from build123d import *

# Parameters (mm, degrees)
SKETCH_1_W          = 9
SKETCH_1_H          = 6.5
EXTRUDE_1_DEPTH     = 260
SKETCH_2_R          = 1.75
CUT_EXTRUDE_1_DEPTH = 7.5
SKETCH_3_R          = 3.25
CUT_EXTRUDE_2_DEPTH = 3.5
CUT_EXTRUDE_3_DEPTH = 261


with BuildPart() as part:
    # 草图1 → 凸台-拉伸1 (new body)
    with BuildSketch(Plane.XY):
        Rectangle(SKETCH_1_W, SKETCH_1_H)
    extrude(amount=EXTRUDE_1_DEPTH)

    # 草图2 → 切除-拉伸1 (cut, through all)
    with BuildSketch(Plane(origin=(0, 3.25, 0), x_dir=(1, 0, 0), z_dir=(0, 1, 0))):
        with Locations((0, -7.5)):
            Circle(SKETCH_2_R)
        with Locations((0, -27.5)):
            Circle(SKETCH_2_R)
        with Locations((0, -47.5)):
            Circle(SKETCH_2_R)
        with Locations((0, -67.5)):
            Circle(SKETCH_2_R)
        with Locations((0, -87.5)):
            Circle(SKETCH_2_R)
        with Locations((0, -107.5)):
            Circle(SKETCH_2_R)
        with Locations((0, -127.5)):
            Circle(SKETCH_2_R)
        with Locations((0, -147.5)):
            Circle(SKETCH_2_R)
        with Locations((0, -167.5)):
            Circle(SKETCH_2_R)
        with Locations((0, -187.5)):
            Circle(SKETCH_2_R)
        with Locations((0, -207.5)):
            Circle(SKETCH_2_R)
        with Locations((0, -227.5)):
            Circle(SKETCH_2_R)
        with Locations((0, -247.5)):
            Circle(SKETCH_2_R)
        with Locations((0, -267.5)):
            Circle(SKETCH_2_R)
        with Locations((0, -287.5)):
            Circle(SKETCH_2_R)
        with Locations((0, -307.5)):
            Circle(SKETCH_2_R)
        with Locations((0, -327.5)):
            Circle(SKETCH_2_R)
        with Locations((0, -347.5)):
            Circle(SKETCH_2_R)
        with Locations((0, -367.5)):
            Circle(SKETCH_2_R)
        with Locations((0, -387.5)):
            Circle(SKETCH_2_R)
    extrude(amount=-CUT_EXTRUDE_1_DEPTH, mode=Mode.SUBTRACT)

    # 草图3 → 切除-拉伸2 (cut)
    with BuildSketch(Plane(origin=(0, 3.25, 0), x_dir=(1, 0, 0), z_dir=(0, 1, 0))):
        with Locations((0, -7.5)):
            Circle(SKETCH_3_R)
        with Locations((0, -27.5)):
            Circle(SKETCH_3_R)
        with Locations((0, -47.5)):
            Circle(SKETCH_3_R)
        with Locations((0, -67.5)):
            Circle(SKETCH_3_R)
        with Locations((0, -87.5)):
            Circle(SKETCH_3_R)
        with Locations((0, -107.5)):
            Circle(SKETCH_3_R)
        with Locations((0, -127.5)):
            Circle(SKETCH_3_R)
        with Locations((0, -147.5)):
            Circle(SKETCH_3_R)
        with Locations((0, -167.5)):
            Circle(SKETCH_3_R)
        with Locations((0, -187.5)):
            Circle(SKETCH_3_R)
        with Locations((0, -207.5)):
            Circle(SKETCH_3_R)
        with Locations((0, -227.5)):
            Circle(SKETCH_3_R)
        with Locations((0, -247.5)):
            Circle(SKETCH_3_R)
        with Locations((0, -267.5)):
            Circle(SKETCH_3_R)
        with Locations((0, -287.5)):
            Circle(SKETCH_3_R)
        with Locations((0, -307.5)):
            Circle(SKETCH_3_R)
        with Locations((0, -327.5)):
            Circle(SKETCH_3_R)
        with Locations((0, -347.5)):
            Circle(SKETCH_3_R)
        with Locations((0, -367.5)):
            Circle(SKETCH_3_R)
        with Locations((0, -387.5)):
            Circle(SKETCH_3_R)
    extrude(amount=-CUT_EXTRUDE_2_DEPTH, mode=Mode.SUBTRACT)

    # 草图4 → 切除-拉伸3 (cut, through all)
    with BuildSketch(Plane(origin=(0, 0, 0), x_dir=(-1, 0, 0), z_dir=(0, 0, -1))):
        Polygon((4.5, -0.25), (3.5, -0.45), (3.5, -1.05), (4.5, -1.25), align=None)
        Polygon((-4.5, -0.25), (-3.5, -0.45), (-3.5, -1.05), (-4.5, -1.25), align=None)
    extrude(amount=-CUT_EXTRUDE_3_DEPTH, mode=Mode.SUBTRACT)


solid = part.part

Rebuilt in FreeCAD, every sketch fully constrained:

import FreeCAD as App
import Part
import Sketcher
from FreeCAD import Vector

doc = App.newDocument("Part")
body = doc.addObject("PartDesign::Body", "Body")

# Sketch on XY plane
sketch1 = body.newObject("Sketcher::SketchObject", "Sketch")
sketch1.AttachmentSupport = (doc.getObject("XY_Plane"), [""])
sketch1.MapMode = "FlatFace"
sketch1.addGeometry(Part.LineSegment(Vector(-4, 3, 0), Vector(-4, -3, 0)), False)
sketch1.addGeometry(Part.LineSegment(Vector(-4, -3, 0), Vector(4, -3, 0)), False)
sketch1.addGeometry(Part.LineSegment(Vector(4, -3, 0), Vector(4, 3, 0)), False)
sketch1.addGeometry(Part.LineSegment(Vector(4, 3, 0), Vector(-4, 3, 0)), False)
sketch1.addConstraint(Sketcher.Constraint("Coincident", 0, 2, 1, 1))
sketch1.addConstraint(Sketcher.Constraint("Coincident", 1, 2, 2, 1))
sketch1.addConstraint(Sketcher.Constraint("Coincident", 2, 2, 3, 1))
sketch1.addConstraint(Sketcher.Constraint("Coincident", 3, 2, 0, 1))
sketch1.addConstraint(Sketcher.Constraint("Vertical", 0))
sketch1.addConstraint(Sketcher.Constraint("Horizontal", 1))
sketch1.addConstraint(Sketcher.Constraint("Vertical", 2))
sketch1.addConstraint(Sketcher.Constraint("Horizontal", 3))
sketch1.addConstraint(Sketcher.Constraint("Symmetric", 0, 2, 2, 2, -1, 1))
sketch1.addConstraint(Sketcher.Constraint("DistanceX", 1, 1, 1, 2, 9.0))
sketch1.addConstraint(Sketcher.Constraint("DistanceY", 0, 2, 0, 1, 6.5))
pad1 = body.newObject("PartDesign::Pad", "Pad")
pad1.Profile = sketch1
pad1.Length = 260

# Sketch on XZ plane
sketch2 = body.newObject("Sketcher::SketchObject", "Sketch001")
sketch2.AttachmentSupport = (doc.getObject("XZ_Plane"), [""])
sketch2.MapMode = "FlatFace"
sketch2.AttachmentOffset = App.Placement(Vector(0, 0, -3.25), App.Rotation())
sketch2.addGeometry(Part.Circle(Vector(0, 7.5, 0), Vector(0, 0, 1), 1.8), False)
sketch2.addGeometry(Part.Circle(Vector(0, 27.5, 0), Vector(0, 0, 1), 1.8), False)
sketch2.addGeometry(Part.Circle(Vector(0, 47.5, 0), Vector(0, 0, 1), 1.8), False)
sketch2.addGeometry(Part.Circle(Vector(0, 67.5, 0), Vector(0, 0, 1), 1.8), False)
sketch2.addGeometry(Part.Circle(Vector(0, 87.5, 0), Vector(0, 0, 1), 1.8), False)
sketch2.addGeometry(Part.Circle(Vector(0, 107.5, 0), Vector(0, 0, 1), 1.8), False)
sketch2.addGeometry(Part.Circle(Vector(0, 127.5, 0), Vector(0, 0, 1), 1.8), False)
sketch2.addGeometry(Part.Circle(Vector(0, 147.5, 0), Vector(0, 0, 1), 1.8), False)
sketch2.addGeometry(Part.Circle(Vector(0, 167.5, 0), Vector(0, 0, 1), 1.8), False)
sketch2.addGeometry(Part.Circle(Vector(0, 187.5, 0), Vector(0, 0, 1), 1.8), False)
sketch2.addGeometry(Part.Circle(Vector(0, 207.5, 0), Vector(0, 0, 1), 1.8), False)
sketch2.addGeometry(Part.Circle(Vector(0, 227.5, 0), Vector(0, 0, 1), 1.8), False)
sketch2.addGeometry(Part.Circle(Vector(0, 247.5, 0), Vector(0, 0, 1), 1.8), False)
sketch2.addGeometry(Part.Circle(Vector(0, 267.5, 0), Vector(0, 0, 1), 1.8), False)
sketch2.addGeometry(Part.Circle(Vector(0, 287.5, 0), Vector(0, 0, 1), 1.8), False)
sketch2.addGeometry(Part.Circle(Vector(0, 307.5, 0), Vector(0, 0, 1), 1.8), False)
sketch2.addGeometry(Part.Circle(Vector(0, 327.5, 0), Vector(0, 0, 1), 1.8), False)
sketch2.addGeometry(Part.Circle(Vector(0, 347.5, 0), Vector(0, 0, 1), 1.8), False)
sketch2.addGeometry(Part.Circle(Vector(0, 367.5, 0), Vector(0, 0, 1), 1.8), False)
sketch2.addGeometry(Part.Circle(Vector(0, 387.5, 0), Vector(0, 0, 1), 1.8), False)
sketch2.addConstraint(Sketcher.Constraint("Equal", 0, 1))
sketch2.addConstraint(Sketcher.Constraint("Equal", 1, 2))
sketch2.addConstraint(Sketcher.Constraint("Equal", 2, 3))
sketch2.addConstraint(Sketcher.Constraint("Equal", 3, 4))
sketch2.addConstraint(Sketcher.Constraint("Equal", 4, 5))
sketch2.addConstraint(Sketcher.Constraint("Equal", 5, 6))
sketch2.addConstraint(Sketcher.Constraint("Equal", 6, 7))
sketch2.addConstraint(Sketcher.Constraint("Equal", 7, 8))
sketch2.addConstraint(Sketcher.Constraint("Equal", 8, 9))
sketch2.addConstraint(Sketcher.Constraint("Equal", 9, 10))
sketch2.addConstraint(Sketcher.Constraint("Equal", 10, 11))
sketch2.addConstraint(Sketcher.Constraint("Equal", 11, 12))
sketch2.addConstraint(Sketcher.Constraint("Equal", 12, 13))
sketch2.addConstraint(Sketcher.Constraint("Equal", 13, 14))
sketch2.addConstraint(Sketcher.Constraint("Equal", 14, 15))
sketch2.addConstraint(Sketcher.Constraint("Equal", 15, 16))
sketch2.addConstraint(Sketcher.Constraint("Equal", 16, 17))
sketch2.addConstraint(Sketcher.Constraint("Equal", 17, 18))
sketch2.addConstraint(Sketcher.Constraint("Equal", 18, 19))
sketch2.addConstraint(Sketcher.Constraint("PointOnObject", 0, 3, -2))
sketch2.addConstraint(Sketcher.Constraint("PointOnObject", 1, 3, -2))
sketch2.addConstraint(Sketcher.Constraint("PointOnObject", 2, 3, -2))
sketch2.addConstraint(Sketcher.Constraint("PointOnObject", 3, 3, -2))
sketch2.addConstraint(Sketcher.Constraint("PointOnObject", 4, 3, -2))
sketch2.addConstraint(Sketcher.Constraint("PointOnObject", 5, 3, -2))
sketch2.addConstraint(Sketcher.Constraint("PointOnObject", 6, 3, -2))
sketch2.addConstraint(Sketcher.Constraint("PointOnObject", 7, 3, -2))
sketch2.addConstraint(Sketcher.Constraint("PointOnObject", 8, 3, -2))
sketch2.addConstraint(Sketcher.Constraint("PointOnObject", 9, 3, -2))
sketch2.addConstraint(Sketcher.Constraint("PointOnObject", 10, 3, -2))
sketch2.addConstraint(Sketcher.Constraint("PointOnObject", 11, 3, -2))
sketch2.addConstraint(Sketcher.Constraint("PointOnObject", 12, 3, -2))
sketch2.addConstraint(Sketcher.Constraint("PointOnObject", 13, 3, -2))
sketch2.addConstraint(Sketcher.Constraint("PointOnObject", 14, 3, -2))
sketch2.addConstraint(Sketcher.Constraint("PointOnObject", 15, 3, -2))
sketch2.addConstraint(Sketcher.Constraint("PointOnObject", 16, 3, -2))
sketch2.addConstraint(Sketcher.Constraint("PointOnObject", 17, 3, -2))
sketch2.addConstraint(Sketcher.Constraint("PointOnObject", 18, 3, -2))
sketch2.addConstraint(Sketcher.Constraint("PointOnObject", 19, 3, -2))
sketch2.addConstraint(Sketcher.Constraint("Diameter", 0, 3.5))
sketch2.addConstraint(Sketcher.Constraint("DistanceY", 0, 3, 1, 3, 20.0))
sketch2.addConstraint(Sketcher.Constraint("DistanceY", 1, 3, 2, 3, 20.0))
sketch2.addConstraint(Sketcher.Constraint("DistanceY", 2, 3, 3, 3, 20.0))
sketch2.addConstraint(Sketcher.Constraint("DistanceY", 3, 3, 4, 3, 20.0))
sketch2.addConstraint(Sketcher.Constraint("DistanceY", 4, 3, 5, 3, 20.0))
sketch2.addConstraint(Sketcher.Constraint("DistanceY", 5, 3, 6, 3, 20.0))
sketch2.addConstraint(Sketcher.Constraint("DistanceY", 6, 3, 7, 3, 20.0))
sketch2.addConstraint(Sketcher.Constraint("DistanceY", 7, 3, 8, 3, 20.0))
sketch2.addConstraint(Sketcher.Constraint("DistanceY", 8, 3, 9, 3, 20.0))
sketch2.addConstraint(Sketcher.Constraint("DistanceY", 9, 3, 10, 3, 20.0))
sketch2.addConstraint(Sketcher.Constraint("DistanceY", 10, 3, 11, 3, 20.0))
sketch2.addConstraint(Sketcher.Constraint("DistanceY", 11, 3, 12, 3, 20.0))
sketch2.addConstraint(Sketcher.Constraint("DistanceY", 12, 3, 13, 3, 20.0))
sketch2.addConstraint(Sketcher.Constraint("DistanceY", 13, 3, 14, 3, 20.0))
sketch2.addConstraint(Sketcher.Constraint("DistanceY", 14, 3, 15, 3, 20.0))
sketch2.addConstraint(Sketcher.Constraint("DistanceY", 15, 3, 16, 3, 20.0))
sketch2.addConstraint(Sketcher.Constraint("DistanceY", 16, 3, 17, 3, 20.0))
sketch2.addConstraint(Sketcher.Constraint("DistanceY", 17, 3, 18, 3, 20.0))
sketch2.addConstraint(Sketcher.Constraint("DistanceY", 18, 3, 19, 3, 20.0))
sketch2.addConstraint(Sketcher.Constraint("DistanceY", -1, 1, 0, 3, 7.5))
pocket1 = body.newObject("PartDesign::Pocket", "Pocket")
pocket1.Profile = sketch2
pocket1.Type = "ThroughAll"
pocket1.Reversed = True

# Sketch on XZ plane
sketch3 = body.newObject("Sketcher::SketchObject", "Sketch002")
sketch3.AttachmentSupport = (doc.getObject("XZ_Plane"), [""])
sketch3.MapMode = "FlatFace"
sketch3.AttachmentOffset = App.Placement(Vector(0, 0, -3.25), App.Rotation())
sketch3.addGeometry(Part.Circle(Vector(0, 7.5, 0), Vector(0, 0, 1), 3.2), False)
sketch3.addGeometry(Part.Circle(Vector(0, 27.5, 0), Vector(0, 0, 1), 3.2), False)
sketch3.addGeometry(Part.Circle(Vector(0, 47.5, 0), Vector(0, 0, 1), 3.2), False)
sketch3.addGeometry(Part.Circle(Vector(0, 67.5, 0), Vector(0, 0, 1), 3.2), False)
sketch3.addGeometry(Part.Circle(Vector(0, 87.5, 0), Vector(0, 0, 1), 3.2), False)
sketch3.addGeometry(Part.Circle(Vector(0, 107.5, 0), Vector(0, 0, 1), 3.2), False)
sketch3.addGeometry(Part.Circle(Vector(0, 127.5, 0), Vector(0, 0, 1), 3.2), False)
sketch3.addGeometry(Part.Circle(Vector(0, 147.5, 0), Vector(0, 0, 1), 3.2), False)
sketch3.addGeometry(Part.Circle(Vector(0, 167.5, 0), Vector(0, 0, 1), 3.2), False)
sketch3.addGeometry(Part.Circle(Vector(0, 187.5, 0), Vector(0, 0, 1), 3.2), False)
sketch3.addGeometry(Part.Circle(Vector(0, 207.5, 0), Vector(0, 0, 1), 3.2), False)
sketch3.addGeometry(Part.Circle(Vector(0, 227.5, 0), Vector(0, 0, 1), 3.2), False)
sketch3.addGeometry(Part.Circle(Vector(0, 247.5, 0), Vector(0, 0, 1), 3.2), False)
sketch3.addGeometry(Part.Circle(Vector(0, 267.5, 0), Vector(0, 0, 1), 3.2), False)
sketch3.addGeometry(Part.Circle(Vector(0, 287.5, 0), Vector(0, 0, 1), 3.2), False)
sketch3.addGeometry(Part.Circle(Vector(0, 307.5, 0), Vector(0, 0, 1), 3.2), False)
sketch3.addGeometry(Part.Circle(Vector(0, 327.5, 0), Vector(0, 0, 1), 3.2), False)
sketch3.addGeometry(Part.Circle(Vector(0, 347.5, 0), Vector(0, 0, 1), 3.2), False)
sketch3.addGeometry(Part.Circle(Vector(0, 367.5, 0), Vector(0, 0, 1), 3.2), False)
sketch3.addGeometry(Part.Circle(Vector(0, 387.5, 0), Vector(0, 0, 1), 3.2), False)
sketch3.addConstraint(Sketcher.Constraint("Equal", 0, 1))
sketch3.addConstraint(Sketcher.Constraint("Equal", 1, 2))
sketch3.addConstraint(Sketcher.Constraint("Equal", 2, 3))
sketch3.addConstraint(Sketcher.Constraint("Equal", 3, 4))
sketch3.addConstraint(Sketcher.Constraint("Equal", 4, 5))
sketch3.addConstraint(Sketcher.Constraint("Equal", 5, 6))
sketch3.addConstraint(Sketcher.Constraint("Equal", 6, 7))
sketch3.addConstraint(Sketcher.Constraint("Equal", 7, 8))
sketch3.addConstraint(Sketcher.Constraint("Equal", 8, 9))
sketch3.addConstraint(Sketcher.Constraint("Equal", 9, 10))
sketch3.addConstraint(Sketcher.Constraint("Equal", 10, 11))
sketch3.addConstraint(Sketcher.Constraint("Equal", 11, 12))
sketch3.addConstraint(Sketcher.Constraint("Equal", 12, 13))
sketch3.addConstraint(Sketcher.Constraint("Equal", 13, 14))
sketch3.addConstraint(Sketcher.Constraint("Equal", 14, 15))
sketch3.addConstraint(Sketcher.Constraint("Equal", 15, 16))
sketch3.addConstraint(Sketcher.Constraint("Equal", 16, 17))
sketch3.addConstraint(Sketcher.Constraint("Equal", 17, 18))
sketch3.addConstraint(Sketcher.Constraint("Equal", 18, 19))
sketch3.addConstraint(Sketcher.Constraint("PointOnObject", 0, 3, -2))
sketch3.addConstraint(Sketcher.Constraint("PointOnObject", 1, 3, -2))
sketch3.addConstraint(Sketcher.Constraint("PointOnObject", 2, 3, -2))
sketch3.addConstraint(Sketcher.Constraint("PointOnObject", 3, 3, -2))
sketch3.addConstraint(Sketcher.Constraint("PointOnObject", 4, 3, -2))
sketch3.addConstraint(Sketcher.Constraint("PointOnObject", 5, 3, -2))
sketch3.addConstraint(Sketcher.Constraint("PointOnObject", 6, 3, -2))
sketch3.addConstraint(Sketcher.Constraint("PointOnObject", 7, 3, -2))
sketch3.addConstraint(Sketcher.Constraint("PointOnObject", 8, 3, -2))
sketch3.addConstraint(Sketcher.Constraint("PointOnObject", 9, 3, -2))
sketch3.addConstraint(Sketcher.Constraint("PointOnObject", 10, 3, -2))
sketch3.addConstraint(Sketcher.Constraint("PointOnObject", 11, 3, -2))
sketch3.addConstraint(Sketcher.Constraint("PointOnObject", 12, 3, -2))
sketch3.addConstraint(Sketcher.Constraint("PointOnObject", 13, 3, -2))
sketch3.addConstraint(Sketcher.Constraint("PointOnObject", 14, 3, -2))
sketch3.addConstraint(Sketcher.Constraint("PointOnObject", 15, 3, -2))
sketch3.addConstraint(Sketcher.Constraint("PointOnObject", 16, 3, -2))
sketch3.addConstraint(Sketcher.Constraint("PointOnObject", 17, 3, -2))
sketch3.addConstraint(Sketcher.Constraint("PointOnObject", 18, 3, -2))
sketch3.addConstraint(Sketcher.Constraint("PointOnObject", 19, 3, -2))
sketch3.addConstraint(Sketcher.Constraint("Diameter", 0, 6.5))
sketch3.addConstraint(Sketcher.Constraint("DistanceY", 0, 3, 1, 3, 20.0))
sketch3.addConstraint(Sketcher.Constraint("DistanceY", 1, 3, 2, 3, 20.0))
sketch3.addConstraint(Sketcher.Constraint("DistanceY", 2, 3, 3, 3, 20.0))
sketch3.addConstraint(Sketcher.Constraint("DistanceY", 3, 3, 4, 3, 20.0))
sketch3.addConstraint(Sketcher.Constraint("DistanceY", 4, 3, 5, 3, 20.0))
sketch3.addConstraint(Sketcher.Constraint("DistanceY", 5, 3, 6, 3, 20.0))
sketch3.addConstraint(Sketcher.Constraint("DistanceY", 6, 3, 7, 3, 20.0))
sketch3.addConstraint(Sketcher.Constraint("DistanceY", 7, 3, 8, 3, 20.0))
sketch3.addConstraint(Sketcher.Constraint("DistanceY", 8, 3, 9, 3, 20.0))
sketch3.addConstraint(Sketcher.Constraint("DistanceY", 9, 3, 10, 3, 20.0))
sketch3.addConstraint(Sketcher.Constraint("DistanceY", 10, 3, 11, 3, 20.0))
sketch3.addConstraint(Sketcher.Constraint("DistanceY", 11, 3, 12, 3, 20.0))
sketch3.addConstraint(Sketcher.Constraint("DistanceY", 12, 3, 13, 3, 20.0))
sketch3.addConstraint(Sketcher.Constraint("DistanceY", 13, 3, 14, 3, 20.0))
sketch3.addConstraint(Sketcher.Constraint("DistanceY", 14, 3, 15, 3, 20.0))
sketch3.addConstraint(Sketcher.Constraint("DistanceY", 15, 3, 16, 3, 20.0))
sketch3.addConstraint(Sketcher.Constraint("DistanceY", 16, 3, 17, 3, 20.0))
sketch3.addConstraint(Sketcher.Constraint("DistanceY", 17, 3, 18, 3, 20.0))
sketch3.addConstraint(Sketcher.Constraint("DistanceY", 18, 3, 19, 3, 20.0))
sketch3.addConstraint(Sketcher.Constraint("DistanceY", -1, 1, 0, 3, 7.5))
pocket2 = body.newObject("PartDesign::Pocket", "Pocket001")
pocket2.Profile = sketch3
pocket2.Length = 3.5
pocket2.Reversed = True

# Sketch on XY plane
sketch4 = body.newObject("Sketcher::SketchObject", "Sketch003")
sketch4.AttachmentSupport = (doc.getObject("XY_Plane"), [""])
sketch4.MapMode = "FlatFace"
sketch4.addGeometry(Part.LineSegment(Vector(-4.5, -0.2, 0), Vector(-3.5, -0.5, 0)), False)
sketch4.addGeometry(Part.LineSegment(Vector(-3.5, -0.5, 0), Vector(-3.5, -1.1, 0)), False)
sketch4.addGeometry(Part.LineSegment(Vector(-3.5, -1.1, 0), Vector(-4.5, -1.2, 0)), False)
sketch4.addGeometry(Part.LineSegment(Vector(-4.5, -1.2, 0), Vector(-4.5, -0.2, 0)), False)
sketch4.addGeometry(Part.LineSegment(Vector(3.5, -0.5, 0), Vector(4.5, -0.2, 0)), False)
sketch4.addGeometry(Part.LineSegment(Vector(4.5, -0.2, 0), Vector(4.5, -1.2, 0)), False)
sketch4.addGeometry(Part.LineSegment(Vector(4.5, -1.2, 0), Vector(3.5, -1.1, 0)), False)
sketch4.addGeometry(Part.LineSegment(Vector(3.5, -1.1, 0), Vector(3.5, -0.5, 0)), False)
sketch4.addConstraint(Sketcher.Constraint("Coincident", 0, 2, 1, 1))
sketch4.addConstraint(Sketcher.Constraint("Coincident", 1, 2, 2, 1))
sketch4.addConstraint(Sketcher.Constraint("Coincident", 2, 2, 3, 1))
sketch4.addConstraint(Sketcher.Constraint("Coincident", 3, 2, 0, 1))
sketch4.addConstraint(Sketcher.Constraint("Coincident", 4, 2, 5, 1))
sketch4.addConstraint(Sketcher.Constraint("Coincident", 5, 2, 6, 1))
sketch4.addConstraint(Sketcher.Constraint("Coincident", 6, 2, 7, 1))
sketch4.addConstraint(Sketcher.Constraint("Coincident", 7, 2, 4, 1))
sketch4.addConstraint(Sketcher.Constraint("Vertical", 1))
sketch4.addConstraint(Sketcher.Constraint("Vertical", 3))
sketch4.addConstraint(Sketcher.Constraint("Vertical", 5))
sketch4.addConstraint(Sketcher.Constraint("Vertical", 7))
sketch4.addConstraint(Sketcher.Constraint("Symmetric", 3, 2, 4, 2, -2))
sketch4.addConstraint(Sketcher.Constraint("Symmetric", 1, 2, 6, 2, -2))
sketch4.addConstraint(Sketcher.Constraint("Parallel", 2, 4))
sketch4.addConstraint(Sketcher.Constraint("Parallel", 0, 6))
sketch4.addConstraint(Sketcher.Constraint("Horizontal", 2, 2, 5, 2))
sketch4.addConstraint(Sketcher.Constraint("DistanceY", 3, 1, 3, 2, 1.0))
sketch4.addConstraint(Sketcher.Constraint("DistanceY", 1, 2, 1, 1, 0.6))
sketch4.addConstraint(Sketcher.Constraint("DistanceX", 2, 2, 1, 2, 1.0))
sketch4.addConstraint(Sketcher.Constraint("DistanceX", 0, 2, 4, 2, 8.0))
sketch4.addConstraint(Sketcher.Constraint("DistanceY", 0, 2, -1, 1, 0.45))
pocket3 = body.newObject("PartDesign::Pocket", "Pocket002")
pocket3.Profile = sketch4
pocket3.Type = "ThroughAll"
pocket3.Reversed = True

doc.recompute()
